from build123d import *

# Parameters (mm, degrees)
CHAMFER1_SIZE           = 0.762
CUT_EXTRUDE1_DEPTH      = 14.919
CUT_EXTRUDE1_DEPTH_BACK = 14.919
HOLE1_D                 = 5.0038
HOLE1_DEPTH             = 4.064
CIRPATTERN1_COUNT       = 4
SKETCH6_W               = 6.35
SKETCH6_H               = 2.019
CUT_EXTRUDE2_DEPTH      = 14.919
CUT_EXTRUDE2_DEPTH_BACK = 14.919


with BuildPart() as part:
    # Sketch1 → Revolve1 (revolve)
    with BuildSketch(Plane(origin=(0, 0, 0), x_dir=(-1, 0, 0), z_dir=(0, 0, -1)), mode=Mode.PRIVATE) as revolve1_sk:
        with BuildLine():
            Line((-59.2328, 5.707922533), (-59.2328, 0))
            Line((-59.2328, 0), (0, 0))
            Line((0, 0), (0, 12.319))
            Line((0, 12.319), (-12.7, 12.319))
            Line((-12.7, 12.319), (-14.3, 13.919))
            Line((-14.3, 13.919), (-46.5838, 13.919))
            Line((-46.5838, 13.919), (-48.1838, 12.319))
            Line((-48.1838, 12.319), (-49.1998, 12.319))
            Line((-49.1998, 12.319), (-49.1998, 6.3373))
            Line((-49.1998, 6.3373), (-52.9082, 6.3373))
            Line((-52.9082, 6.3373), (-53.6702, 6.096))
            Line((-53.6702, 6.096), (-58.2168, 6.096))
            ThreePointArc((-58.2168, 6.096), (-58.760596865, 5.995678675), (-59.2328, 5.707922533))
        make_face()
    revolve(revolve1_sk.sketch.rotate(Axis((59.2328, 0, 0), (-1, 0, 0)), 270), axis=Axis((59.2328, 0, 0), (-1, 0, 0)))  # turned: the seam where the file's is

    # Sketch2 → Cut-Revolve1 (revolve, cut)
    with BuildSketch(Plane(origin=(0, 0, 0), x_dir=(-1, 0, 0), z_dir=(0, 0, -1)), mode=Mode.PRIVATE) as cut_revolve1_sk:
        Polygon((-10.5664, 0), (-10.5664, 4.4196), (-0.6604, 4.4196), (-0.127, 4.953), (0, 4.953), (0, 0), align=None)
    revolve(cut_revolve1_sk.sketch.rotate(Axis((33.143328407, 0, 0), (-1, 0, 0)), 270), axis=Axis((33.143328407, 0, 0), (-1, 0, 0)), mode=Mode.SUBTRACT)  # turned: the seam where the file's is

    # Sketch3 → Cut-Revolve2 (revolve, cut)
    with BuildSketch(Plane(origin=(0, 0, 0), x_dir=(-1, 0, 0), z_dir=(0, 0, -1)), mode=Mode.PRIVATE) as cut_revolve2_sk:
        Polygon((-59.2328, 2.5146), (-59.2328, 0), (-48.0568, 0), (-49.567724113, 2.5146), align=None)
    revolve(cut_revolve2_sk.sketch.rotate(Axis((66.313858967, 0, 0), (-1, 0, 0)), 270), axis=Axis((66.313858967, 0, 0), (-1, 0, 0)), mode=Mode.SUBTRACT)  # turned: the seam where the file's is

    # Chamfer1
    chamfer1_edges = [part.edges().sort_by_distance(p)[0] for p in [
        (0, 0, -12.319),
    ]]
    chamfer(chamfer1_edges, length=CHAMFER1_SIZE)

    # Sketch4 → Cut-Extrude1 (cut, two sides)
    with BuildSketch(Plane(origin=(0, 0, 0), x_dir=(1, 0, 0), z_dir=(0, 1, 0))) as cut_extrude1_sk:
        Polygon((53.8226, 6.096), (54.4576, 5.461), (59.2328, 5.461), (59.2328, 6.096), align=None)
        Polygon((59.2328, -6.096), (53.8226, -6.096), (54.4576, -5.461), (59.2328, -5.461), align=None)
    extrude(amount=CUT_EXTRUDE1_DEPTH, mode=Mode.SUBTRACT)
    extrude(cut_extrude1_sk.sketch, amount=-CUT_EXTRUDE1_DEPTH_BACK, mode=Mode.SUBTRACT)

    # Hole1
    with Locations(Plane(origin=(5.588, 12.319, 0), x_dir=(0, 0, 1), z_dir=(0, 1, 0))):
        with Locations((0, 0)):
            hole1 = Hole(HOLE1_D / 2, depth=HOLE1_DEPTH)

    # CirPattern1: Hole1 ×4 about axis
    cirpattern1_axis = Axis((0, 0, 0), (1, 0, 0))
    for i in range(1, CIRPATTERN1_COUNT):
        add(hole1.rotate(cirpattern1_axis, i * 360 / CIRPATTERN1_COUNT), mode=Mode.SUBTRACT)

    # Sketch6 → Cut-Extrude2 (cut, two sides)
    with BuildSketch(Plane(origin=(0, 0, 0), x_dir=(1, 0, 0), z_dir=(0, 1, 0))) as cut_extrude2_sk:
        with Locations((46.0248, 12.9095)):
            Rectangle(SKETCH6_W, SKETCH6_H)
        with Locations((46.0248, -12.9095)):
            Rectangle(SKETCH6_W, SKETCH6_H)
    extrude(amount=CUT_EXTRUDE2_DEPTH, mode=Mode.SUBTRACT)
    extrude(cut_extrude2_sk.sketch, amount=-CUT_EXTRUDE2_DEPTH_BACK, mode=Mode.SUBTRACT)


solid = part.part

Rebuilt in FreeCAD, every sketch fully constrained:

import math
import FreeCAD as App
import Part
import Sketcher
from FreeCAD import Vector
Q = App.Units.Quantity


def edges_at(feature, points):
    """Names of the edges that pass closest to the given points."""
    edges = feature.Shape.Edges
    near = lambda p: min(range(len(edges)), key=lambda i: edges[i].distToShape(Part.Vertex(*p))[0])
    return sorted({f"Edge{near(p) + 1}" for p in points})


def add_polygon(sketch, points):
    """Adds a closed chain of lines whose ends are joined by coincident constraints."""
    first, n = sketch.GeometryCount, len(points)
    for a, b in zip(points, points[1:] + points[:1]):
        sketch.addGeometry(Part.LineSegment(App.Vector(*a, 0), App.Vector(*b, 0)), False)
    for i in range(n):
        sketch.addConstraint(Sketcher.Constraint("Coincident", first + i, 2, first + (i + 1) % n, 1))

doc = App.newDocument("Part")
body = doc.addObject("PartDesign::Body", "Body")

# Sketch on XY plane
sketch1 = body.newObject("Sketcher::SketchObject", "Sketch")
sketch1.AttachmentSupport = (doc.getObject("XY_Plane"), [""])
sketch1.MapMode = "FlatFace"
sketch1.addGeometry([
    Part.LineSegment(Vector(59.2, 5.7, 0), Vector(59.2, 0, 0)),  # 0
    Part.LineSegment(Vector(59.2, 0, 0), Vector(0, 0, 0)),  # 1
    Part.LineSegment(Vector(0, 0, 0), Vector(0, 12.3, 0)),  # 2
    Part.LineSegment(Vector(0, 12.3, 0), Vector(12.7, 12.3, 0)),  # 3
    Part.LineSegment(Vector(12.7, 12.3, 0), Vector(14.3, 13.9, 0)),  # 4
    Part.LineSegment(Vector(14.3, 13.9, 0), Vector(46.6, 13.9, 0)),  # 5
    Part.LineSegment(Vector(46.6, 13.9, 0), Vector(48.2, 12.3, 0)),  # 6
    Part.LineSegment(Vector(48.2, 12.3, 0), Vector(49.2, 12.3, 0)),  # 7
    Part.LineSegment(Vector(49.2, 12.3, 0), Vector(49.2, 6.3, 0)),  # 8
    Part.LineSegment(Vector(49.2, 6.3, 0), Vector(52.9, 6.3, 0)),  # 9
    Part.LineSegment(Vector(52.9, 6.3, 0), Vector(53.7, 6.1, 0)),  # 10
    Part.LineSegment(Vector(53.7, 6.1, 0), Vector(58.2, 6.1, 0)),  # 11
    Part.ArcOfCircle(Part.Circle(Vector(58.2, 4.6, 0), Vector(0, 0, 1), 1.5), math.radians(48), math.radians(90)),  # 12
], False)
sketch1.addConstraint([
    Sketcher.Constraint("Coincident", 0, 2, 1, 1),
    Sketcher.Constraint("Coincident", 1, 2, 2, 1),
    Sketcher.Constraint("Coincident", 2, 2, 3, 1),
    Sketcher.Constraint("Coincident", 3, 2, 4, 1),
    Sketcher.Constraint("Coincident", 4, 2, 5, 1),
    Sketcher.Constraint("Coincident", 5, 2, 6, 1),
    Sketcher.Constraint("Coincident", 6, 2, 7, 1),
    Sketcher.Constraint("Coincident", 7, 2, 8, 1),
    Sketcher.Constraint("Coincident", 8, 2, 9, 1),
    Sketcher.Constraint("Coincident", 9, 2, 10, 1),
    Sketcher.Constraint("Coincident", 10, 2, 11, 1),
    Sketcher.Constraint("Tangent", 11, 2, 12, 2),
    Sketcher.Constraint("Coincident", 12, 1, 0, 1),
    Sketcher.Constraint("Vertical", 0),
    Sketcher.Constraint("Horizontal", 1),
    Sketcher.Constraint("Vertical", 2),
    Sketcher.Constraint("Horizontal", 3),
    Sketcher.Constraint("Horizontal", 5),
    Sketcher.Constraint("Horizontal", 7),
    Sketcher.Constraint("Vertical", 8),
    Sketcher.Constraint("Horizontal", 9),
    Sketcher.Constraint("Horizontal", 11),
    Sketcher.Constraint("Coincident", 1, 2, -1, 1),
    Sketcher.Constraint("Perpendicular", 4, 6),
    Sketcher.Constraint("Horizontal", 3, 2, 6, 2),
    Sketcher.Constraint("Equal", 4, 6),
    Sketcher.Constraint("Radius", 12, Q("0.06 in")),
    Sketcher.Constraint("DistanceX", 3, 1, 3, 2, Q("0.5 in")),
    Sketcher.Constraint("DistanceX", 7, 1, 7, 2, Q("0.04 in")),
    Sketcher.Constraint("DistanceX", 1, 2, 1, 1, Q("2.332 in")),
    Sketcher.Constraint("DistanceX", 9, 1, 9, 2, Q("0.146 in")),
    Sketcher.Constraint("DistanceX", 11, 1, 11, 2, Q("0.179 in")),
    Sketcher.Constraint("DistanceY", 2, 1, 2, 2, Q("0.485 in")),
    Sketcher.Constraint("DistanceY", -1, 1, 12, 3, Q("0.18 in")),
    Sketcher.Constraint("DistanceX", 12, 3, 0, 2, Q("0.04 in")),
    Sketcher.Constraint("DistanceX", 9, 2, 10, 2, Q("0.03 in")),
    Sketcher.Constraint("DistanceY", 8, 2, 8, 1, Q("0.2355 in")),
    Sketcher.Constraint("DistanceX", 5, 1, 5, 2, Q("32.2838 mm")),
])
revolution = body.newObject("PartDesign::Revolution", "Revolution")
revolution.Profile = sketch1
revolution.ReferenceAxis = (sketch1, ["H_Axis"])
revolution.Angle = 360

# Sketch on XY plane
sketch2 = body.newObject("Sketcher::SketchObject", "Sketch001")
sketch2.AttachmentSupport = (doc.getObject("XY_Plane"), [""])
sketch2.MapMode = "FlatFace"
add_polygon(sketch2, [(10.57, 4.42), (10.57, 0), (0, 0), (0, 4.95), (0.13, 4.95), (0.66, 4.42)])  # lines 0-5
sketch2.addConstraint([
    Sketcher.Constraint("Vertical", 0),
    Sketcher.Constraint("Horizontal", 1),
    Sketcher.Constraint("Vertical", 2),
    Sketcher.Constraint("Horizontal", 3),
    Sketcher.Constraint("Horizontal", 5),
    Sketcher.Constraint("Coincident", 1, 2, -1, 1),
    Sketcher.Constraint("Angle", 4, Q("-45 deg")),
    Sketcher.Constraint("DistanceX", 5, 1, 5, 2, Q("0.39 in")),
    Sketcher.Constraint("DistanceX", 1, 2, 1, 1, Q("0.416 in")),
    Sketcher.Constraint("DistanceX", 3, 1, 3, 2, Q("0.005 in")),
    Sketcher.Constraint("DistanceY", 0, 2, 0, 1, Q("0.174 in")),
])
groove = body.newObject("PartDesign::Groove", "Groove")
groove.Profile = sketch2
groove.ReferenceAxis = (sketch2, ["H_Axis"])
groove.Angle = 360

# Sketch on XY plane
sketch3 = body.newObject("Sketcher::SketchObject", "Sketch002")
sketch3.AttachmentSupport = (doc.getObject("XY_Plane"), [""])
sketch3.MapMode = "FlatFace"
add_polygon(sketch3, [(59.2, 2.5), (59.2, 0), (48.1, 0), (49.6, 2.5)])  # lines 0-3
sketch3.addConstraint([
    Sketcher.Constraint("Vertical", 0),
    Sketcher.Constraint("Horizontal", 1),
    Sketcher.Constraint("Horizontal", 3),
    Sketcher.Constraint("PointOnObject", 0, 2, -1),
    Sketcher.Constraint("Angle", 2, Q("59 deg")),
    Sketcher.Constraint("DistanceX", 1, 2, 1, 1, Q("0.44 in")),
    Sketcher.Constraint("DistanceY", 0, 2, 0, 1, Q("0.099 in")),
    Sketcher.Constraint("DistanceX", -1, 1, 0, 2, Q("2.332 in")),
])
groove2 = body.newObject("PartDesign::Groove", "Groove001")
groove2.Profile = sketch3
groove2.ReferenceAxis = (sketch3, ["H_Axis"])
groove2.Angle = 360
doc.recompute()

chamfer = body.newObject("PartDesign::Chamfer", "Chamfer")
chamfer.Base = (groove2, edges_at(groove2, [(0, 0, -12.319)]))
chamfer.Size = Q("0.03 in")

# Sketch on XZ plane
sketch4 = body.newObject("Sketcher::SketchObject", "Sketch003")
sketch4.AttachmentSupport = (doc.getObject("XZ_Plane"), [""])
sketch4.MapMode = "FlatFace"
add_polygon(sketch4, [(53.8, -6.1), (54.5, -5.5), (59.2, -5.5), (59.2, -6.1)])  # lines 0-3
add_polygon(sketch4, [(53.8, 6.1), (59.2, 6.1), (59.2, 5.5), (54.5, 5.5)])  # lines 4-7
sketch4.addConstraint([
    Sketcher.Constraint("Horizontal", 1),
    Sketcher.Constraint("Vertical", 2),
    Sketcher.Constraint("Horizontal", 3),
    Sketcher.Constraint("Horizontal", 4),
    Sketcher.Constraint("Vertical", 5),
    Sketcher.Constraint("Horizontal", 6),
    Sketcher.Constraint("Symmetric", 2, 2, 4, 2, -1),
    Sketcher.Constraint("Symmetric", 0, 2, 6, 2, -1),
    Sketcher.Constraint("Perpendicular", 0, 7),
    Sketcher.Constraint("Vertical", 3, 2, 7, 2),
    Sketcher.Constraint("DistanceX", 1, 1, 1, 2, Q("0.188 in")),
    Sketcher.Constraint("DistanceX", 3, 2, 3, 1, Q("0.213 in")),
    Sketcher.Constraint("DistanceY", 2, 2, -1, 1, Q("0.24 in")),
    Sketcher.Constraint("DistanceX", -1, 1, 0, 2, Q("2.144 in")),
])
pocket1 = body.newObject("PartDesign::Pocket", "Pocket")
pocket1.Profile = sketch4
pocket1.Type = "ThroughAll"
pocket1.Midplane = True

# Sketch on XZ plane
sketch5 = body.newObject("Sketcher::SketchObject", "Sketch004")
sketch5.AttachmentSupport = (doc.getObject("XZ_Plane"), [""])
sketch5.MapMode = "FlatFace"
sketch5.AttachmentOffset = App.Placement(Vector(0, 0, -0.485 * 25.4), App.Rotation())
sketch5.addGeometry(Part.Circle(Vector(5.6, 0, 0), Vector(0, 0, 1), 2.5), False)
sketch5.addConstraint([
    Sketcher.Constraint("PointOnObject", 0, 3, -1),
    Sketcher.Constraint("Diameter", 0, Q("0.197 in")),
    Sketcher.Constraint("DistanceX", -1, 1, 0, 3, Q("0.22 in")),
])
doc.recompute()
hole = body.newObject("PartDesign::Hole", "Hole")
hole.Profile = sketch5
hole.ThreadType = "None"
hole.Diameter = Q("0.197 in")
hole.DepthType = "Dimension"
hole.Depth = Q("0.16 in")
hole.DrillPoint = "Flat"
hole.Reversed = True
doc.recompute()

polarpattern = body.newObject("PartDesign::PolarPattern", "PolarPattern")
polarpattern.Originals = [hole]
polarpattern.Axis = (doc.getObject("X_Axis"), [""])
polarpattern.Angle = 360
polarpattern.Occurrences = 4
body.Tip = polarpattern

# Sketch on XZ plane
sketch6 = body.newObject("Sketcher::SketchObject", "Sketch005")
sketch6.AttachmentSupport = (doc.getObject("XZ_Plane"), [""])
sketch6.MapMode = "FlatFace"
add_polygon(sketch6, [(42.8, -13.9), (42.8, -11.9), (49.2, -11.9), (49.2, -13.9)])  # lines 0-3
add_polygon(sketch6, [(42.8, 11.9), (42.8, 13.9), (49.2, 13.9), (49.2, 11.9)])  # lines 4-7
sketch6.addConstraint([
    Sketcher.Constraint("Vertical", 0),
    Sketcher.Constraint("Horizontal", 1),
    Sketcher.Constraint("Vertical", 2),
    Sketcher.Constraint("Horizontal", 3),
    Sketcher.Constraint("Vertical", 4),
    Sketcher.Constraint("Horizontal", 5),
    Sketcher.Constraint("Vertical", 6),
    Sketcher.Constraint("Horizontal", 7),
    Sketcher.Constraint("Symmetric", 3, 2, 4, 2, -1),
    Sketcher.Constraint("Symmetric", 1, 2, 6, 2, -1),
    Sketcher.Constraint("DistanceX", 1, 1, 1, 2, Q("0.25 in")),
    Sketcher.Constraint("DistanceX", -1, 1, 0, 2, Q("1.687 in")),
    Sketcher.Constraint("DistanceY", 0, 1, 0, 2, Q("2.019 mm")),
    Sketcher.Constraint("DistanceY", 0, 2, -1, 1, Q("11.9 mm")),
])
pocket2 = body.newObject("PartDesign::Pocket", "Pocket001")
pocket2.Profile = sketch6
pocket2.Type = "ThroughAll"
pocket2.Midplane = True

doc.recompute()
